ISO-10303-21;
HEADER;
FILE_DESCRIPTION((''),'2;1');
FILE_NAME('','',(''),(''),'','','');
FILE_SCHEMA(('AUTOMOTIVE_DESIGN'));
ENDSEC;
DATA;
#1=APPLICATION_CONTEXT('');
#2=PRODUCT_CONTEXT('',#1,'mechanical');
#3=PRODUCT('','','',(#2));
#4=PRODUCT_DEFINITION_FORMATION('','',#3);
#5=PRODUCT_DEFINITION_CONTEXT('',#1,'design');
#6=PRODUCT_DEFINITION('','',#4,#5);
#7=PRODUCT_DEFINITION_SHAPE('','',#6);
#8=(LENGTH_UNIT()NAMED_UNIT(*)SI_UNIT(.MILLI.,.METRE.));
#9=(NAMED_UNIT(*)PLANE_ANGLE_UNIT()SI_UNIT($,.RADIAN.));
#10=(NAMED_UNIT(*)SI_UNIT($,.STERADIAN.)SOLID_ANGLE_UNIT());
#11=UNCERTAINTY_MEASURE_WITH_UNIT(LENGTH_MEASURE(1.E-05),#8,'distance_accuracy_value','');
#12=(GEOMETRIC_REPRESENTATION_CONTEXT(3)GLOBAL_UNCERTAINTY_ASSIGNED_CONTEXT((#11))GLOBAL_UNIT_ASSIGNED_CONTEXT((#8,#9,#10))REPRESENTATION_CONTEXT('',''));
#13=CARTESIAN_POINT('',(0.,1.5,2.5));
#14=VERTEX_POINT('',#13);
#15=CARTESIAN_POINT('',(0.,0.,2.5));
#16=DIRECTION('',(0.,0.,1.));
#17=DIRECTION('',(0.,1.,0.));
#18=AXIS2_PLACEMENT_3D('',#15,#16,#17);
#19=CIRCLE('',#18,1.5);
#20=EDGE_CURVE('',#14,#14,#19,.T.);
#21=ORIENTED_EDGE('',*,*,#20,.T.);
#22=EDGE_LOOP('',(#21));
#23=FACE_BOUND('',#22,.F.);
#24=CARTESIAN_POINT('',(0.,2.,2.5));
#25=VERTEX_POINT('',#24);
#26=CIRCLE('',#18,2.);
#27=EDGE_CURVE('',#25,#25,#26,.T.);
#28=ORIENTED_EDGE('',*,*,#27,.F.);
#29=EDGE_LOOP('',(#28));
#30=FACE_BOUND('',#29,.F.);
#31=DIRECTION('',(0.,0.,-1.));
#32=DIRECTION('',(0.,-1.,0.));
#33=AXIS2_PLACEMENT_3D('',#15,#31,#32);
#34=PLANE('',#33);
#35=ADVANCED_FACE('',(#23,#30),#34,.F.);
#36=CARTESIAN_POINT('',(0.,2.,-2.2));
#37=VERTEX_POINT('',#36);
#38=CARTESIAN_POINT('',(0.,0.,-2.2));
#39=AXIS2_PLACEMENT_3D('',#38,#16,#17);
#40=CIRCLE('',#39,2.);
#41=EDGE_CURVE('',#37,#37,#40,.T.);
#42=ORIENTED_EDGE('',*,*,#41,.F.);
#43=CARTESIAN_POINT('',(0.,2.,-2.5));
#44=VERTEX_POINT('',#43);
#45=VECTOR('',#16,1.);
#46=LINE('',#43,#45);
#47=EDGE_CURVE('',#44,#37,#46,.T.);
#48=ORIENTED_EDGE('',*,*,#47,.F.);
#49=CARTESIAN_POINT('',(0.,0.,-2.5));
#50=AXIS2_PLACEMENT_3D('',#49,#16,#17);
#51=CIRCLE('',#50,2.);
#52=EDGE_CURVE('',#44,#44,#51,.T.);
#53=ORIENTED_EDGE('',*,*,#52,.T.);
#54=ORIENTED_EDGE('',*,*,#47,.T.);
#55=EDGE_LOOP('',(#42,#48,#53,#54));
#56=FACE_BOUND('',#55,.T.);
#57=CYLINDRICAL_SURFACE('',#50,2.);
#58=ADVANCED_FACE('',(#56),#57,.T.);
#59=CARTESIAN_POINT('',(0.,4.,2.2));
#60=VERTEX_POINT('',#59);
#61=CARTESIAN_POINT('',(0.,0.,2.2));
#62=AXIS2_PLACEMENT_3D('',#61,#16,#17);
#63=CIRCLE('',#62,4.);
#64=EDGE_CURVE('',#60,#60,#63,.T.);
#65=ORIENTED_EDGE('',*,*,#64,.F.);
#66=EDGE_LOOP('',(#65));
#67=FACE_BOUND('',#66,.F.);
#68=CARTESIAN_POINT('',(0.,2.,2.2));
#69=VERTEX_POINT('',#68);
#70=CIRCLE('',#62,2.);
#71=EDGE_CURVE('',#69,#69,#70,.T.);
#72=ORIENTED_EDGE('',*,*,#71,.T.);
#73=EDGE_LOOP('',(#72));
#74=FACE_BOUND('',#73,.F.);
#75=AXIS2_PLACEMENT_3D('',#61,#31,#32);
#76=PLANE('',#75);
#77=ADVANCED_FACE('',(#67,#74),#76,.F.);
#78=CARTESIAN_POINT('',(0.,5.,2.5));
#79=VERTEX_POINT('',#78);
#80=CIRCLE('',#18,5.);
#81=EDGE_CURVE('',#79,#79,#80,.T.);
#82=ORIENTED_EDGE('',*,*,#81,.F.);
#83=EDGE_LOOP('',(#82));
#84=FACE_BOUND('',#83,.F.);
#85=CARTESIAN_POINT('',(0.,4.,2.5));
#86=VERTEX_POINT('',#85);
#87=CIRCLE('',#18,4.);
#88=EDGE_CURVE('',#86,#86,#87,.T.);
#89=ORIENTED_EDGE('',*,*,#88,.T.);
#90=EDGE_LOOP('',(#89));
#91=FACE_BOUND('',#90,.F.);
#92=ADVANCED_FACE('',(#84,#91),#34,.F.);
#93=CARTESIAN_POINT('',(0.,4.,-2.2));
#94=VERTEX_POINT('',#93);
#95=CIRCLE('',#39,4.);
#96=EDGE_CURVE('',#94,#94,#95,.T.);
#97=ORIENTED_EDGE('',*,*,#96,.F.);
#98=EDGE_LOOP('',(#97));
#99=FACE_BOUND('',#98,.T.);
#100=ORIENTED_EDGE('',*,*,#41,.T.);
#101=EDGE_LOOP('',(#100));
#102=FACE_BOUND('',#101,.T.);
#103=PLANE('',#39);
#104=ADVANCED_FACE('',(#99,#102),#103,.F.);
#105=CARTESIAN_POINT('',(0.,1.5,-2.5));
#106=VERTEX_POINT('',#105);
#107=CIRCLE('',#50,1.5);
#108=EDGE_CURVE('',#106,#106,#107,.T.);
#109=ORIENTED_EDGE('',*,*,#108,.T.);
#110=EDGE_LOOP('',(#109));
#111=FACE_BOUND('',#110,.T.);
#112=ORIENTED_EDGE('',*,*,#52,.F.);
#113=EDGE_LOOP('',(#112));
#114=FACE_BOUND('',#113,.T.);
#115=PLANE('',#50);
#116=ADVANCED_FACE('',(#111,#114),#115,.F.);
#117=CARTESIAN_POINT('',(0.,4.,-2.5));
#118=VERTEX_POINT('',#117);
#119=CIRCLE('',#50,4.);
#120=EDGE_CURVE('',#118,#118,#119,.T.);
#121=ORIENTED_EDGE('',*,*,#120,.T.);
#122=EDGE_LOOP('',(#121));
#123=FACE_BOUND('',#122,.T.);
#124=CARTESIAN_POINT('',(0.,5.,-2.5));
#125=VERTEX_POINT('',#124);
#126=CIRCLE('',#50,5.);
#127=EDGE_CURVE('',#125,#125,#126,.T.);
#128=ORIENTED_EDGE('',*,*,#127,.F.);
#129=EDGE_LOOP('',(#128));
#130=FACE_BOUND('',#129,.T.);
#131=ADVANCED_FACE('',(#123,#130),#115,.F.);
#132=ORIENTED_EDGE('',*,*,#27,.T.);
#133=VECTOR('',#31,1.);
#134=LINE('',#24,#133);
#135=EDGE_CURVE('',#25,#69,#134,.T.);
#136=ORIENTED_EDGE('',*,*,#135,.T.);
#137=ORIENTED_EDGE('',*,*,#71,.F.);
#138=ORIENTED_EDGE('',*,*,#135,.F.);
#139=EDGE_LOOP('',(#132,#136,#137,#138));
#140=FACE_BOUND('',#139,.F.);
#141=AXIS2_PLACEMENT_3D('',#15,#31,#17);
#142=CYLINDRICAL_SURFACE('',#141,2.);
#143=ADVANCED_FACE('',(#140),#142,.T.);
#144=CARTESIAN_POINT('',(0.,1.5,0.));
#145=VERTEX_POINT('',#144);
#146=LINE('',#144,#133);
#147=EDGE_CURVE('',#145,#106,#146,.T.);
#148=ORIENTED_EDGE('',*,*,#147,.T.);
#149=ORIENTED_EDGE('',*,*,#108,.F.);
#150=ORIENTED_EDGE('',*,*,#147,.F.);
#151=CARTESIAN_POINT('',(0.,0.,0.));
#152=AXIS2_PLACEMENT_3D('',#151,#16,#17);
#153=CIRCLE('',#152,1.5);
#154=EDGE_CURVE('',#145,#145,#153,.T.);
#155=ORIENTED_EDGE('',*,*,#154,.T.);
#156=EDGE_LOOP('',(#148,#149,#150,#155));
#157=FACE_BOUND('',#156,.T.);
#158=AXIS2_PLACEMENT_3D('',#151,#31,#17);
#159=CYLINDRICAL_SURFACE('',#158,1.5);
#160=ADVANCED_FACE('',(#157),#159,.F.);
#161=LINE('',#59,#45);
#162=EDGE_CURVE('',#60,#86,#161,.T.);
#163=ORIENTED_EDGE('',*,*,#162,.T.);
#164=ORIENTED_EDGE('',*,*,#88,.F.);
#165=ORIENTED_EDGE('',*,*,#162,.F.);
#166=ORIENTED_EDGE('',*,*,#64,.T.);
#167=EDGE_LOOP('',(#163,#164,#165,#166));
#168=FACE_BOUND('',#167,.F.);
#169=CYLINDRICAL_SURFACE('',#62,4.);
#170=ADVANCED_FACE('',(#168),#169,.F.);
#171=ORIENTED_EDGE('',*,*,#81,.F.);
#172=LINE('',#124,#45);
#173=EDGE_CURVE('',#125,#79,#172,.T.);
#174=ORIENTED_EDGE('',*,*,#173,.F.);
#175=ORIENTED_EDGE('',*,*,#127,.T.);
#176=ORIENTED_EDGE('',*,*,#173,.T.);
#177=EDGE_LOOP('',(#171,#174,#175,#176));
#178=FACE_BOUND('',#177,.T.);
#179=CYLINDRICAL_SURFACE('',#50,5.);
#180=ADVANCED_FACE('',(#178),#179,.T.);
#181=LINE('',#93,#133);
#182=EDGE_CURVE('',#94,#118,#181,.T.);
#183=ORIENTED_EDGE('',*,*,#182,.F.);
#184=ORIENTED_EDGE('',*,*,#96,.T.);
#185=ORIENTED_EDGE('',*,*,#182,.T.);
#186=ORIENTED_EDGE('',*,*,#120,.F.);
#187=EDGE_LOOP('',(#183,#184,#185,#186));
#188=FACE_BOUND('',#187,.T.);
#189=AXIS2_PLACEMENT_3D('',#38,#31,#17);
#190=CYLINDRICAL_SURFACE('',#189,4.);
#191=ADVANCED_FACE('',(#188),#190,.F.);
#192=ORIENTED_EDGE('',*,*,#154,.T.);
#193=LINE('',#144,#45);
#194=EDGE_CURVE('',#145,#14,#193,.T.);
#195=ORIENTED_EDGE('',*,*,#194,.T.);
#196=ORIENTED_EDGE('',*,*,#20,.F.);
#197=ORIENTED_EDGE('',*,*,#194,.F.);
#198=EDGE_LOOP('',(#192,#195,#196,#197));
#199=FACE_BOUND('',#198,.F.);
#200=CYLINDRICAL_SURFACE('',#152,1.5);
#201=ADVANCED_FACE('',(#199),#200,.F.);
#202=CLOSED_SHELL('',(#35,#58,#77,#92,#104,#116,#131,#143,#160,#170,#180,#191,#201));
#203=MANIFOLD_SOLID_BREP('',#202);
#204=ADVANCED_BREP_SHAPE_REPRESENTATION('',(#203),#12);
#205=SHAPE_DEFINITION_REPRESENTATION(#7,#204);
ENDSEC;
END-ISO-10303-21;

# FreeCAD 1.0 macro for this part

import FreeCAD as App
import Part
import Sketcher
Q = App.Units.Quantity


def add_polygon(sketch, points):
    """Adds a closed chain of lines whose ends are joined by coincident constraints."""
    first, n = sketch.GeometryCount, len(points)
    for a, b in zip(points, points[1:] + points[:1]):
        sketch.addGeometry(Part.LineSegment(App.Vector(*a, 0), App.Vector(*b, 0)), False)
    for i in range(n):
        sketch.addConstraint(Sketcher.Constraint("Coincident", first + i, 2, first + (i + 1) % n, 1))

doc = App.newDocument("Part")
params = doc.addObject("Spreadsheet::Sheet", "Params")
for row, (alias, value) in enumerate([
    ("sketch1_width", "1 mm"),
    ("sketch1_width2", "0.5 mm"),
    ("sketch1_height", "2.5 mm"),
    ("revolution_angle", "360 deg"),
], start=1):
    params.set(f"A{row}", alias)
    params.set(f"B{row}", "=" + value)
    params.setAlias(f"B{row}", alias)

body = doc.addObject("PartDesign::Body", "Body")

sketch1 = doc.addObject("Sketcher::SketchObject", "Sketch")
body.addObject(sketch1)
sketch1.AttachmentSupport = (doc.YZ_Plane, [""])
sketch1.MapMode = "FlatFace"
add_polygon(sketch1, [(5, -2.5), (5, 0), (1.5, 0), (1.5, -2.5), (2, -2.5), (2, -2.2), (4, -2.2), (4, -2.5)])
sketch1.addConstraint([
    Sketcher.Constraint("Vertical", 0),
    Sketcher.Constraint("Horizontal", 1),
    Sketcher.Constraint("Vertical", 2),
    Sketcher.Constraint("Horizontal", 3),
    Sketcher.Constraint("Vertical", 4),
    Sketcher.Constraint("Horizontal", 5),
    Sketcher.Constraint("Vertical", 6),
    Sketcher.Constraint("Horizontal", 7),
    Sketcher.Constraint("PointOnObject", 0, 2, -1),
    Sketcher.Constraint("Horizontal", 3, 2, 6, 2),
    Sketcher.Constraint("DistanceX", 7, 1, 7, 2, Q("1 mm")),
    Sketcher.Constraint("DistanceX", 3, 1, 3, 2, Q("0.5 mm")),
    Sketcher.Constraint("DistanceY", 0, 1, 0, 2, Q("2.5 mm")),
    Sketcher.Constraint("DistanceX", -1, 1, 0, 2, Q("5 mm")),
    Sketcher.Constraint("DistanceX", -1, 1, 1, 2, Q("1.5 mm")),
    Sketcher.Constraint("DistanceY", 4, 2, -1, 1, Q("2.2 mm")),
])
sketch1.setExpression("Constraints[18]", "Params.sketch1_width")
sketch1.setExpression("Constraints[19]", "Params.sketch1_width2")
sketch1.setExpression("Constraints[20]", "Params.sketch1_height")
revolution = doc.addObject("PartDesign::Revolution", "Revolution")
body.addObject(revolution)
revolution.Profile = sketch1
revolution.ReferenceAxis = (sketch1, ["V_Axis"])
revolution.setExpression("Angle", "Params.revolution_angle")
doc.recompute()

mirrored = doc.addObject("PartDesign::Mirrored", "Mirrored")
body.addObject(mirrored)
mirrored.Originals = [revolution]
mirrored.MirrorPlane = (doc.XY_Plane, [""])
body.Tip = mirrored

doc.recompute()
